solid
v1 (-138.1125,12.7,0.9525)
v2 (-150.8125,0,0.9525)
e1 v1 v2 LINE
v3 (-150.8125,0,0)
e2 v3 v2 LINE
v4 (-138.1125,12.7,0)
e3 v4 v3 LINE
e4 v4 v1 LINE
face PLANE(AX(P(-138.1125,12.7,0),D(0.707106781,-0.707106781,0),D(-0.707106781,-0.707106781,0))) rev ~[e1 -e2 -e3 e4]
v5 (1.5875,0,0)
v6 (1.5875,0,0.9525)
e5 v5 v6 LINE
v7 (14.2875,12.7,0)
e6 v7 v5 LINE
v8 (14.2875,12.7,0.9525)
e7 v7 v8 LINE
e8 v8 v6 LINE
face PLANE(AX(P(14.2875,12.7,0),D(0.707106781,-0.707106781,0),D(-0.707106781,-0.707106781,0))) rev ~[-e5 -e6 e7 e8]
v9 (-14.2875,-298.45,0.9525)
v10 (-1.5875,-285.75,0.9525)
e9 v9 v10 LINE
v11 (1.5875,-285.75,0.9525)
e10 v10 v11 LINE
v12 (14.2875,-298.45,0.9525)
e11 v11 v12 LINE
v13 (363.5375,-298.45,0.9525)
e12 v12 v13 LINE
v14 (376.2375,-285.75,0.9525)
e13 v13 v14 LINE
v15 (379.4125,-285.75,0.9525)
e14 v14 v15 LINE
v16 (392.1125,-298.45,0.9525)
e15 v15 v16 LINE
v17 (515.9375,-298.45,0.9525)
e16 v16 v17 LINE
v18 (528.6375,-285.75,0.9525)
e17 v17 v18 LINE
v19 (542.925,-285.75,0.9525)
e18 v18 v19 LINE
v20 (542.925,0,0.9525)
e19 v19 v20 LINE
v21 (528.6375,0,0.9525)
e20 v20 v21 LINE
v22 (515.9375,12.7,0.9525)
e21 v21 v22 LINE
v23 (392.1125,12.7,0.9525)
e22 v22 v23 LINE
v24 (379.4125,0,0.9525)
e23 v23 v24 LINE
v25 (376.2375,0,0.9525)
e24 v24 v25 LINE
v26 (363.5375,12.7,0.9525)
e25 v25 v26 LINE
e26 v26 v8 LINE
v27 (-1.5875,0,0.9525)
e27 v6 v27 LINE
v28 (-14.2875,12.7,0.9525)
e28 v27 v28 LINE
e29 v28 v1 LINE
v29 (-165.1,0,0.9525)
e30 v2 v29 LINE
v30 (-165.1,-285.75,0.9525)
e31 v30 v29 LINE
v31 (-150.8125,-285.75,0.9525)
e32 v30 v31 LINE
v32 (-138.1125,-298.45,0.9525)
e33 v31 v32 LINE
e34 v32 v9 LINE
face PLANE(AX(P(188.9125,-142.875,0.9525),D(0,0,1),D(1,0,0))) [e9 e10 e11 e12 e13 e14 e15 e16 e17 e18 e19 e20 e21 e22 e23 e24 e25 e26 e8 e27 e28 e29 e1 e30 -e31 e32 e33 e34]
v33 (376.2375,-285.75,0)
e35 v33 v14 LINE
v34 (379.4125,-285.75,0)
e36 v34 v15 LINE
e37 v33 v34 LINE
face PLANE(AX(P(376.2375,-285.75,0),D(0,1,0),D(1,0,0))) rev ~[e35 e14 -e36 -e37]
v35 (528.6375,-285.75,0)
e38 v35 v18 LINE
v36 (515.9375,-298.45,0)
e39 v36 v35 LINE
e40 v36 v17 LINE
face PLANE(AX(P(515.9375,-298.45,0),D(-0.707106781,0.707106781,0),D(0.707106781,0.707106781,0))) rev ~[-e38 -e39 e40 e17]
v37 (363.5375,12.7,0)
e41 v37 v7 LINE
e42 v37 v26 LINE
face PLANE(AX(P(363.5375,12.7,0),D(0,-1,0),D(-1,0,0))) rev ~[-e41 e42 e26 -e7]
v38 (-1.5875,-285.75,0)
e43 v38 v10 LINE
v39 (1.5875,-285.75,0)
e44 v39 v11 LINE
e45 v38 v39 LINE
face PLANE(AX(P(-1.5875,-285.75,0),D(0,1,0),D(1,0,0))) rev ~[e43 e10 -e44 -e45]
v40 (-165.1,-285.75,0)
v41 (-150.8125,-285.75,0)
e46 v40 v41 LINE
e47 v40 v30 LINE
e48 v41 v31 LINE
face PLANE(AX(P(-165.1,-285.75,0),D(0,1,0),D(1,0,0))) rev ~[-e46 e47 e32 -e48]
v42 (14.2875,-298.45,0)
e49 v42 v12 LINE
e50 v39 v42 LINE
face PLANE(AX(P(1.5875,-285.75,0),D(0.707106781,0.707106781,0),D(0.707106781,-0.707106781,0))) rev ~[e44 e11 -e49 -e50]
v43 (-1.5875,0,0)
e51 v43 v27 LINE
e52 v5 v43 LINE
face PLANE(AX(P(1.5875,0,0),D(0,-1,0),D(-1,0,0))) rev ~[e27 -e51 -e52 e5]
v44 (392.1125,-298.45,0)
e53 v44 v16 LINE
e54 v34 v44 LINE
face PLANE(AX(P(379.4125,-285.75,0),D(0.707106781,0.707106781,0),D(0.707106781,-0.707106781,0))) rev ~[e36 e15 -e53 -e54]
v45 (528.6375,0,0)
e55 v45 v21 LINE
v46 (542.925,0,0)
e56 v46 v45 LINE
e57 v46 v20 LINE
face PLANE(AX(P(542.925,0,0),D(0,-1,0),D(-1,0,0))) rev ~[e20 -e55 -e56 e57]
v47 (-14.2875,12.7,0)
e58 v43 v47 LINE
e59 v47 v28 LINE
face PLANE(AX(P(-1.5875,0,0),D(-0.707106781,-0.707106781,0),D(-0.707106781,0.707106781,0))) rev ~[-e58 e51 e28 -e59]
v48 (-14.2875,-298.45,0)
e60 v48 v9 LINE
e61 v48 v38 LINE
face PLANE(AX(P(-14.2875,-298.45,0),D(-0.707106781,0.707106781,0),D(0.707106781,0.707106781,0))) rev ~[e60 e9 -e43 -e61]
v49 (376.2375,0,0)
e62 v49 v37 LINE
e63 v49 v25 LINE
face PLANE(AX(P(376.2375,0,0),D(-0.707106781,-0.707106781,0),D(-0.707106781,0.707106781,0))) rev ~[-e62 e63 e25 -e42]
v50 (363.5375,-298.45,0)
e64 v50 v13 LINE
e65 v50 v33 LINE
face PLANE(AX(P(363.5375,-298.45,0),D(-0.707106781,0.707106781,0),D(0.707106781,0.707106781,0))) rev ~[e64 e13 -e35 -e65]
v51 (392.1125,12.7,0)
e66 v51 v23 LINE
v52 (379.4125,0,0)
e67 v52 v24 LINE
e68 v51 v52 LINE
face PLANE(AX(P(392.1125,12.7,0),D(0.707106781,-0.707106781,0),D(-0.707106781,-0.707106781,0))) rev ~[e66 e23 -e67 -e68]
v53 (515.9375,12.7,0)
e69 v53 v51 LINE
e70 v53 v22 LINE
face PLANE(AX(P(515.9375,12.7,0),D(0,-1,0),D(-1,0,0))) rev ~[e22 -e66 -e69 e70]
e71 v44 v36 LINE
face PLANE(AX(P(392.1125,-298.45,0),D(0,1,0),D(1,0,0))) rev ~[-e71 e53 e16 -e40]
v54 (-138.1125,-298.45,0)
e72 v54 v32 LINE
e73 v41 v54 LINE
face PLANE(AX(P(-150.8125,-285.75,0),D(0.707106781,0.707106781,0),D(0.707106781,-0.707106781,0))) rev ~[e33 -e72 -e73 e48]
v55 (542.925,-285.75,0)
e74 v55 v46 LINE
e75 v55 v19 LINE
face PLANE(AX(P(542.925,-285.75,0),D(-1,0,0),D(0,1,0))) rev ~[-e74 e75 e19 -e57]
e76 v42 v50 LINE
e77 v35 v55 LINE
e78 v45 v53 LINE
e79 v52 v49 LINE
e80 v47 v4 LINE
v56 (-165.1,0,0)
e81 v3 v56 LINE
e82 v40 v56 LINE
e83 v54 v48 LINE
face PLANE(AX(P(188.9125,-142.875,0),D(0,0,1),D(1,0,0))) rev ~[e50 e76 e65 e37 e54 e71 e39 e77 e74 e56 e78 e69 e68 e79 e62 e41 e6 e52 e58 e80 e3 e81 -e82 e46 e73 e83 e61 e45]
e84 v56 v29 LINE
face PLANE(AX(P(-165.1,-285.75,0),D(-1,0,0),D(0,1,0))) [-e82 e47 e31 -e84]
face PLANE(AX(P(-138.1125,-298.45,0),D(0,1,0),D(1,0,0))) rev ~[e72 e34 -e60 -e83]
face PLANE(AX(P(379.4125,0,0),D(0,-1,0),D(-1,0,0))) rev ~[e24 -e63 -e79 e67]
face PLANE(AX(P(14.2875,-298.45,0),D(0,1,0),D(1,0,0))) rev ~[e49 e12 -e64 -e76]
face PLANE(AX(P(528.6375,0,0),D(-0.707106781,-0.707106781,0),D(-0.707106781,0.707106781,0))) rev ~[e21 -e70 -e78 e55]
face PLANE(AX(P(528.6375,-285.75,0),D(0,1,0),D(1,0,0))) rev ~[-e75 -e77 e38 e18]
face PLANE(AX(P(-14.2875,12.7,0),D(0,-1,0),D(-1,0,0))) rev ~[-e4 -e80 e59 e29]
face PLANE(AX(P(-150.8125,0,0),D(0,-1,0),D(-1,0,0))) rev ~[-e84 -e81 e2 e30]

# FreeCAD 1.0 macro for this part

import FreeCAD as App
import Part
import Sketcher
from FreeCAD import Vector
Q = App.Units.Quantity

doc = App.newDocument("Part")
body = doc.addObject("PartDesign::Body", "Body")

# Sketch on XY plane
sketch1 = body.newObject("Sketcher::SketchObject", "Sketch")
sketch1.AttachmentSupport = (doc.getObject("XY_Plane"), [""])
sketch1.MapMode = "FlatFace"
sketch1.addGeometry([
    Part.LineSegment(Vector(376.2, 0, 0), Vector(363.5, 12.7, 0)),  # 0
    Part.LineSegment(Vector(363.5, 12.7, 0), Vector(14.3, 12.7, 0)),  # 1
    Part.LineSegment(Vector(14.3, 12.7, 0), Vector(1.6, 0, 0)),  # 2
    Part.LineSegment(Vector(1.6, 0, 0), Vector(-1.6, 0, 0)),  # 3
    Part.LineSegment(Vector(-1.6, 0, 0), Vector(-14.3, 12.7, 0)),  # 4
    Part.LineSegment(Vector(-14.3, 12.7, 0), Vector(-138.1, 12.7, 0)),  # 5
    Part.LineSegment(Vector(-138.1, 12.7, 0), Vector(-150.8, 0, 0)),  # 6
    Part.LineSegment(Vector(-150.8, 0, 0), Vector(-165.1, 0, 0)),  # 7
    Part.LineSegment(Vector(-165.1, 0, 0), Vector(-165.1, -285.8, 0)),  # 8
    Part.LineSegment(Vector(-165.1, -285.8, 0), Vector(-150.8, -285.8, 0)),  # 9
    Part.LineSegment(Vector(-150.8, -285.8, 0), Vector(-138.1, -298.4, 0)),  # 10
    Part.LineSegment(Vector(-138.1, -298.4, 0), Vector(-14.3, -298.4, 0)),  # 11
    Part.LineSegment(Vector(-14.3, -298.4, 0), Vector(-1.6, -285.8, 0)),  # 12
    Part.LineSegment(Vector(-1.6, -285.8, 0), Vector(1.6, -285.8, 0)),  # 13
    Part.LineSegment(Vector(1.6, -285.8, 0), Vector(14.3, -298.4, 0)),  # 14
    Part.LineSegment(Vector(14.3, -298.4, 0), Vector(363.5, -298.4, 0)),  # 15
    Part.LineSegment(Vector(363.5, -298.4, 0), Vector(376.2, -285.8, 0)),  # 16
    Part.LineSegment(Vector(376.2, -285.8, 0), Vector(379.4, -285.8, 0)),  # 17
    Part.LineSegment(Vector(379.4, -285.8, 0), Vector(392.1, -298.4, 0)),  # 18
    Part.LineSegment(Vector(392.1, -298.4, 0), Vector(515.9, -298.4, 0)),  # 19
    Part.LineSegment(Vector(515.9, -298.4, 0), Vector(528.6, -285.8, 0)),  # 20
    Part.LineSegment(Vector(528.6, -285.8, 0), Vector(542.9, -285.8, 0)),  # 21
    Part.LineSegment(Vector(542.9, -285.8, 0), Vector(542.9, 0, 0)),  # 22
    Part.LineSegment(Vector(542.9, 0, 0), Vector(528.6, 0, 0)),  # 23
    Part.LineSegment(Vector(528.6, 0, 0), Vector(515.9, 12.7, 0)),  # 24
    Part.LineSegment(Vector(515.9, 12.7, 0), Vector(392.1, 12.7, 0)),  # 25
    Part.LineSegment(Vector(392.1, 12.7, 0), Vector(379.4, 0, 0)),  # 26
    Part.LineSegment(Vector(379.4, 0, 0), Vector(376.2, 0, 0)),  # 27
], False)
sketch1.addConstraint([
    Sketcher.Constraint("Coincident", 0, 2, 1, 1),
    Sketcher.Constraint("Coincident", 1, 2, 2, 1),
    Sketcher.Constraint("Coincident", 2, 2, 3, 1),
    Sketcher.Constraint("Coincident", 3, 2, 4, 1),
    Sketcher.Constraint("Coincident", 4, 2, 5, 1),
    Sketcher.Constraint("Coincident", 5, 2, 6, 1),
    Sketcher.Constraint("Coincident", 6, 2, 7, 1),
    Sketcher.Constraint("Coincident", 7, 2, 8, 1),
    Sketcher.Constraint("Coincident", 8, 2, 9, 1),
    Sketcher.Constraint("Coincident", 9, 2, 10, 1),
    Sketcher.Constraint("Coincident", 10, 2, 11, 1),
    Sketcher.Constraint("Coincident", 11, 2, 12, 1),
    Sketcher.Constraint("Coincident", 12, 2, 13, 1),
    Sketcher.Constraint("Coincident", 13, 2, 14, 1),
    Sketcher.Constraint("Coincident", 14, 2, 15, 1),
    Sketcher.Constraint("Coincident", 15, 2, 16, 1),
    Sketcher.Constraint("Coincident", 16, 2, 17, 1),
    Sketcher.Constraint("Coincident", 17, 2, 18, 1),
    Sketcher.Constraint("Coincident", 18, 2, 19, 1),
    Sketcher.Constraint("Coincident", 19, 2, 20, 1),
    Sketcher.Constraint("Coincident", 20, 2, 21, 1),
    Sketcher.Constraint("Coincident", 21, 2, 22, 1),
    Sketcher.Constraint("Coincident", 22, 2, 23, 1),
    Sketcher.Constraint("Coincident", 23, 2, 24, 1),
    Sketcher.Constraint("Coincident", 24, 2, 25, 1),
    Sketcher.Constraint("Coincident", 25, 2, 26, 1),
    Sketcher.Constraint("Coincident", 26, 2, 27, 1),
    Sketcher.Constraint("Coincident", 27, 2, 0, 1),
    Sketcher.Constraint("Horizontal", 1),
    Sketcher.Constraint("Horizontal", 3),
    Sketcher.Constraint("Horizontal", 5),
    Sketcher.Constraint("Horizontal", 7),
    Sketcher.Constraint("Vertical", 8),
    Sketcher.Constraint("Horizontal", 9),
    Sketcher.Constraint("Horizontal", 11),
    Sketcher.Constraint("Horizontal", 13),
    Sketcher.Constraint("Horizontal", 15),
    Sketcher.Constraint("Horizontal", 17),
    Sketcher.Constraint("Horizontal", 19),
    Sketcher.Constraint("Horizontal", 21),
    Sketcher.Constraint("Vertical", 22),
    Sketcher.Constraint("Horizontal", 23),
    Sketcher.Constraint("Horizontal", 25),
    Sketcher.Constraint("Horizontal", 27),
    Sketcher.Constraint("Symmetric", 2, 2, 3, 2, -1, 1),
    Sketcher.Constraint("Symmetric", 1, 2, 4, 2, -2),
    Sketcher.Constraint("Symmetric", 11, 2, 14, 2, -2),
    Sketcher.Constraint("PointOnObject", 6, 2, -1),
    Sketcher.Constraint("PointOnObject", 22, 2, -1),
    Sketcher.Constraint("PointOnObject", 26, 2, -1),
    Sketcher.Constraint("Perpendicular", 0, 2),
    Sketcher.Constraint("Perpendicular", 2, 4),
    Sketcher.Constraint("Perpendicular", 4, 6),
    Sketcher.Constraint("Perpendicular", 6, 10),
    Sketcher.Constraint("Perpendicular", 10, 12),
    Sketcher.Constraint("Perpendicular", 12, 14),
    Sketcher.Constraint("Perpendicular", 14, 16),
    Sketcher.Constraint("Perpendicular", 16, 18),
    Sketcher.Constraint("Perpendicular", 18, 20),
    Sketcher.Constraint("Perpendicular", 20, 24),
    Sketcher.Constraint("Perpendicular", 24, 26),
    Sketcher.Constraint("Horizontal", 9, 2, 12, 2),
    Sketcher.Constraint("Horizontal", 13, 2, 16, 2),
    Sketcher.Constraint("Horizontal", 15, 2, 18, 2),
    Sketcher.Constraint("Horizontal", 17, 2, 20, 2),
    Sketcher.Constraint("Horizontal", 5, 2, 24, 2),
    Sketcher.Constraint("Vertical", 6, 2, 9, 2),
    Sketcher.Constraint("Vertical", 5, 2, 10, 2),
    Sketcher.Constraint("Vertical", 4, 2, 11, 2),
    Sketcher.Constraint("Vertical", 0, 2, 15, 2),
    Sketcher.Constraint("Vertical", 20, 2, 23, 2),
    Sketcher.Constraint("Vertical", 18, 2, 25, 2),
    Sketcher.Constraint("Equal", 13, 17),
    Sketcher.Constraint("Equal", 11, 19),
    Sketcher.Constraint("Equal", 9, 21),
    Sketcher.Constraint("DistanceX", 5, 2, 1, 2, Q("6 in")),
    Sketcher.Constraint("DistanceX", 1, 2, 1, 1, Q("13.75 in")),
    Sketcher.Constraint("DistanceY", 8, 2, 8, 1, Q("11.25 in")),
    Sketcher.Constraint("DistanceY", -1, 1, 0, 2, Q("0.5 in")),
    Sketcher.Constraint("DistanceX", 7, 2, -1, 1, Q("6.5 in")),
    Sketcher.Constraint("DistanceX", 3, 2, 3, 1, Q("0.125 in")),
])
pad1 = body.newObject("PartDesign::Pad", "Pad")
pad1.Profile = sketch1
pad1.Length = Q("0.0375 in")

doc.recompute()
